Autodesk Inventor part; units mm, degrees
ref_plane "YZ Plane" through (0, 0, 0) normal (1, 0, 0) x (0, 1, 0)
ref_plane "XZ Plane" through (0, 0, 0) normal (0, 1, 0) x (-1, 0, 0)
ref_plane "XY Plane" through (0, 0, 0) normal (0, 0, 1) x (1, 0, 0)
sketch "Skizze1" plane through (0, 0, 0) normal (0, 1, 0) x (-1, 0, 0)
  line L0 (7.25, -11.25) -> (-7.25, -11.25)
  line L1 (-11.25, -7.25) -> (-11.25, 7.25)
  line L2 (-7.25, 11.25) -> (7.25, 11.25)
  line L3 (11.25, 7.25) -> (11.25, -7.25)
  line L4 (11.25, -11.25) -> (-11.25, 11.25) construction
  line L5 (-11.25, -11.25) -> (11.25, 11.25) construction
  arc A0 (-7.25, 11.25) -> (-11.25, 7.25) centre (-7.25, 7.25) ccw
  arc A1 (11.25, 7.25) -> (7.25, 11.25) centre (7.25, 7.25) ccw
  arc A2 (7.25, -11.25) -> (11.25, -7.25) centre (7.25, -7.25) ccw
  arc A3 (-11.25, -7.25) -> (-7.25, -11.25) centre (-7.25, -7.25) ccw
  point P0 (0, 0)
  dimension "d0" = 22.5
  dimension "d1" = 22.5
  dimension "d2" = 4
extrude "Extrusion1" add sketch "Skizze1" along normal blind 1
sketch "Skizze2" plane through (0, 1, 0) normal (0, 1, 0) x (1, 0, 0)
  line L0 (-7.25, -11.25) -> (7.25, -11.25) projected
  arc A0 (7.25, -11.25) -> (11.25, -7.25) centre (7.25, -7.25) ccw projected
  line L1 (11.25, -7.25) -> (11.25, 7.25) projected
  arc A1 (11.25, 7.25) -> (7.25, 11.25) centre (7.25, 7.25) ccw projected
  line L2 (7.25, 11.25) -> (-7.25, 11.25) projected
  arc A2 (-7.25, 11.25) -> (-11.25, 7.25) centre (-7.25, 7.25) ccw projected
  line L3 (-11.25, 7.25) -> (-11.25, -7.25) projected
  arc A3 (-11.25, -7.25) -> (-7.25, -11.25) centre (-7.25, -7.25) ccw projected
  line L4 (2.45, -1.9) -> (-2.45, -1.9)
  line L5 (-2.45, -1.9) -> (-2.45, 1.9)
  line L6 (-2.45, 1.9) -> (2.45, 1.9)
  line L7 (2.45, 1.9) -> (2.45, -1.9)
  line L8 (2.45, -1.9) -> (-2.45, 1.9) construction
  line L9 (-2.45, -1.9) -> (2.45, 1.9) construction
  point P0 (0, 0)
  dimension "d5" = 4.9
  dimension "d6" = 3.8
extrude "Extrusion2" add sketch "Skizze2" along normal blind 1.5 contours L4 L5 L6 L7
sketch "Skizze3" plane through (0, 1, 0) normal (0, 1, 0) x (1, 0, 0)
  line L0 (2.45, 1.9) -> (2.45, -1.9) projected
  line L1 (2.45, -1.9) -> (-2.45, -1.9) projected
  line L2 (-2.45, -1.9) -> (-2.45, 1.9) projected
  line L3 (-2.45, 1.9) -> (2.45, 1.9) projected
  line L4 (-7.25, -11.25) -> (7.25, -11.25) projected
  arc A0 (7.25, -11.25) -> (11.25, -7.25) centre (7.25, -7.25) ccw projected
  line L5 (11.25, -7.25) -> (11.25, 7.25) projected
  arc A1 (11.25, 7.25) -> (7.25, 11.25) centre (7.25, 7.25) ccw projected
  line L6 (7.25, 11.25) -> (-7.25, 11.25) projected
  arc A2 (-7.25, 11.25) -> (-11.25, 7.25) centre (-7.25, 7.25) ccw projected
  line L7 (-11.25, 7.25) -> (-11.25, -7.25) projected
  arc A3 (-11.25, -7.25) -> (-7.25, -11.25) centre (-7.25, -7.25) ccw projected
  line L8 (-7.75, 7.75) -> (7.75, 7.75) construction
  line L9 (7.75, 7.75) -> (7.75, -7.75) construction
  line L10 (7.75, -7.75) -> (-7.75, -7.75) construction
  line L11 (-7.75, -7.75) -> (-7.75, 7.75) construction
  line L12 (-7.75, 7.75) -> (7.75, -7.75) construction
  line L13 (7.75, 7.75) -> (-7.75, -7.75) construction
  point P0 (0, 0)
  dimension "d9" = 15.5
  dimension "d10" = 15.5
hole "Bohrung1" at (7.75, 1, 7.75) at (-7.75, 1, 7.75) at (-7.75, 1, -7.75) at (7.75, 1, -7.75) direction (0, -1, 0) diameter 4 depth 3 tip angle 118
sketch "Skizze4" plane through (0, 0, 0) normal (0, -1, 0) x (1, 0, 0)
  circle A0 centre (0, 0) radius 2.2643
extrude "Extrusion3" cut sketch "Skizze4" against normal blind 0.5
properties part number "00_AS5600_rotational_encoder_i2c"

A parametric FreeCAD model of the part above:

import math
import FreeCAD as App
import Part
import Sketcher


def add_polygon(sketch, points):
    """Adds a closed chain of lines whose ends are joined by coincident constraints."""
    first, n = sketch.GeometryCount, len(points)
    for a, b in zip(points, points[1:] + points[:1]):
        sketch.addGeometry(Part.LineSegment(App.Vector(*a, 0), App.Vector(*b, 0)), False)
    for i in range(n):
        sketch.addConstraint(Sketcher.Constraint("Coincident", first + i, 2, first + (i + 1) % n, 1))

doc = App.newDocument("Part")
body = doc.addObject("PartDesign::Body", "Body")

# Sketch on XZ plane
sketch1 = body.newObject("Sketcher::SketchObject", "Sketch")
sketch1.AttachmentSupport = (doc.getObject("XZ_Plane"), [""])
sketch1.MapMode = "FlatFace"
sketch1.addGeometry(Part.LineSegment(App.Vector(7.25, -11.25, 0), App.Vector(-7.25, -11.25, 0)), False)
sketch1.addGeometry(Part.ArcOfCircle(Part.Circle(App.Vector(-7.25, -7.25, 0), App.Vector(0, 0, 1), 4), math.radians(180), math.radians(270)), False)
sketch1.addGeometry(Part.LineSegment(App.Vector(-11.25, -7.25, 0), App.Vector(-11.25, 7.25, 0)), False)
sketch1.addGeometry(Part.ArcOfCircle(Part.Circle(App.Vector(-7.25, 7.25, 0), App.Vector(0, 0, 1), 4), math.radians(90), math.radians(180)), False)
sketch1.addGeometry(Part.LineSegment(App.Vector(-7.25, 11.25, 0), App.Vector(7.25, 11.25, 0)), False)
sketch1.addGeometry(Part.ArcOfCircle(Part.Circle(App.Vector(7.25, 7.25, 0), App.Vector(0, 0, 1), 4), math.radians(0), math.radians(90)), False)
sketch1.addGeometry(Part.LineSegment(App.Vector(11.25, 7.25, 0), App.Vector(11.25, -7.25, 0)), False)
sketch1.addGeometry(Part.ArcOfCircle(Part.Circle(App.Vector(7.25, -7.25, 0), App.Vector(0, 0, 1), 4), math.radians(-90), math.radians(0)), False)
sketch1.addConstraint(Sketcher.Constraint("Tangent", 0, 2, 1, 2))
sketch1.addConstraint(Sketcher.Constraint("Tangent", 1, 1, 2, 1))
sketch1.addConstraint(Sketcher.Constraint("Tangent", 2, 2, 3, 2))
sketch1.addConstraint(Sketcher.Constraint("Tangent", 3, 1, 4, 1))
sketch1.addConstraint(Sketcher.Constraint("Tangent", 4, 2, 5, 2))
sketch1.addConstraint(Sketcher.Constraint("Tangent", 5, 1, 6, 1))
sketch1.addConstraint(Sketcher.Constraint("Tangent", 6, 2, 7, 2))
sketch1.addConstraint(Sketcher.Constraint("Tangent", 7, 1, 0, 1))
sketch1.addConstraint(Sketcher.Constraint("Horizontal", 0))
sketch1.addConstraint(Sketcher.Constraint("Vertical", 2))
sketch1.addConstraint(Sketcher.Constraint("Horizontal", 4))
sketch1.addConstraint(Sketcher.Constraint("Vertical", 6))
sketch1.addConstraint(Sketcher.Constraint("Equal", 1, 3))
sketch1.addConstraint(Sketcher.Constraint("Equal", 3, 5))
sketch1.addConstraint(Sketcher.Constraint("Equal", 5, 7))
sketch1.addConstraint(Sketcher.Constraint("Symmetric", 1, 3, 5, 3, -1, 1))
sketch1.addConstraint(Sketcher.Constraint("Equal", 4, 2))
sketch1.addConstraint(Sketcher.Constraint("Radius", 1, 4.0))
sketch1.addConstraint(Sketcher.Constraint("DistanceX", 0, 2, 0, 1, 14.5))
pad1 = body.newObject("PartDesign::Pad", "Pad")
pad1.Profile = sketch1
pad1.Length = 1
pad1.Reversed = True

# Sketch on XZ plane
sketch2 = body.newObject("Sketcher::SketchObject", "Sketch001")
sketch2.AttachmentSupport = (doc.getObject("XZ_Plane"), [""])
sketch2.MapMode = "FlatFace"
sketch2.AttachmentOffset = App.Placement(App.Vector(0, 0, -1), App.Rotation())
add_polygon(sketch2, [(-2.45, 1.9), (2.45, 1.9), (2.45, -1.9), (-2.45, -1.9)])  # lines 0-3
sketch2.addConstraint(Sketcher.Constraint("Horizontal", 0))
sketch2.addConstraint(Sketcher.Constraint("Vertical", 1))
sketch2.addConstraint(Sketcher.Constraint("Horizontal", 2))
sketch2.addConstraint(Sketcher.Constraint("Vertical", 3))
sketch2.addConstraint(Sketcher.Constraint("Symmetric", 0, 2, 2, 2, -1, 1))
sketch2.addConstraint(Sketcher.Constraint("DistanceX", 0, 1, 0, 2, 4.9))
sketch2.addConstraint(Sketcher.Constraint("DistanceY", 1, 2, 1, 1, 3.8))
pad2 = body.newObject("PartDesign::Pad", "Pad001")
pad2.Profile = sketch2
pad2.Length = 1.5
pad2.Reversed = True

# Sketch on XZ plane
sketch3 = body.newObject("Sketcher::SketchObject", "Sketch002")
sketch3.AttachmentSupport = (doc.getObject("XZ_Plane"), [""])
sketch3.MapMode = "FlatFace"
sketch3.AttachmentOffset = App.Placement(App.Vector(0, 0, -1), App.Rotation())
sketch3.addGeometry(Part.Circle(App.Vector(7.75, 7.75, 0), App.Vector(0, 0, 1), 2), False)
sketch3.addGeometry(Part.Circle(App.Vector(-7.75, 7.75, 0), App.Vector(0, 0, 1), 2), False)
sketch3.addGeometry(Part.Circle(App.Vector(-7.75, -7.75, 0), App.Vector(0, 0, 1), 2), False)
sketch3.addGeometry(Part.Circle(App.Vector(7.75, -7.75, 0), App.Vector(0, 0, 1), 2), False)
sketch3.addConstraint(Sketcher.Constraint("Equal", 0, 1))
sketch3.addConstraint(Sketcher.Constraint("Equal", 1, 2))
sketch3.addConstraint(Sketcher.Constraint("Equal", 2, 3))
sketch3.addConstraint(Sketcher.Constraint("Symmetric", 0, 3, 2, 3, -1, 1))
sketch3.addConstraint(Sketcher.Constraint("Symmetric", 1, 3, 3, 3, -1, 1))
sketch3.addConstraint(Sketcher.Constraint("Symmetric", 0, 3, 1, 3, -2))
sketch3.addConstraint(Sketcher.Constraint("Diameter", 0, 4.0))
sketch3.addConstraint(Sketcher.Constraint("DistanceX", 1, 3, 0, 3, 15.5))
sketch3.addConstraint(Sketcher.Constraint("DistanceY", 2, 3, 1, 3, 15.5))
doc.recompute()
hole = body.newObject("PartDesign::Hole", "Hole")
hole.Profile = sketch3
hole.ThreadType = "None"
hole.Diameter = 4
hole.DepthType = "Dimension"
hole.Depth = 3
hole.DrillPoint = "Angled"
hole.DrillPointAngle = 118
hole.Reversed = True

# Sketch on XZ plane
sketch4 = body.newObject("Sketcher::SketchObject", "Sketch003")
sketch4.AttachmentSupport = (doc.getObject("XZ_Plane"), [""])
sketch4.MapMode = "FlatFace"
sketch4.addGeometry(Part.Circle(App.Vector(0, 0, 0), App.Vector(0, 0, 1), 2.2643), False)
sketch4.addConstraint(Sketcher.Constraint("Coincident", 0, 3, -1, 1))
sketch4.addConstraint(Sketcher.Constraint("Diameter", 0, 4.5286))
pocket1 = body.newObject("PartDesign::Pocket", "Pocket")
pocket1.Profile = sketch4
pocket1.Length = 0.5

doc.recompute()
